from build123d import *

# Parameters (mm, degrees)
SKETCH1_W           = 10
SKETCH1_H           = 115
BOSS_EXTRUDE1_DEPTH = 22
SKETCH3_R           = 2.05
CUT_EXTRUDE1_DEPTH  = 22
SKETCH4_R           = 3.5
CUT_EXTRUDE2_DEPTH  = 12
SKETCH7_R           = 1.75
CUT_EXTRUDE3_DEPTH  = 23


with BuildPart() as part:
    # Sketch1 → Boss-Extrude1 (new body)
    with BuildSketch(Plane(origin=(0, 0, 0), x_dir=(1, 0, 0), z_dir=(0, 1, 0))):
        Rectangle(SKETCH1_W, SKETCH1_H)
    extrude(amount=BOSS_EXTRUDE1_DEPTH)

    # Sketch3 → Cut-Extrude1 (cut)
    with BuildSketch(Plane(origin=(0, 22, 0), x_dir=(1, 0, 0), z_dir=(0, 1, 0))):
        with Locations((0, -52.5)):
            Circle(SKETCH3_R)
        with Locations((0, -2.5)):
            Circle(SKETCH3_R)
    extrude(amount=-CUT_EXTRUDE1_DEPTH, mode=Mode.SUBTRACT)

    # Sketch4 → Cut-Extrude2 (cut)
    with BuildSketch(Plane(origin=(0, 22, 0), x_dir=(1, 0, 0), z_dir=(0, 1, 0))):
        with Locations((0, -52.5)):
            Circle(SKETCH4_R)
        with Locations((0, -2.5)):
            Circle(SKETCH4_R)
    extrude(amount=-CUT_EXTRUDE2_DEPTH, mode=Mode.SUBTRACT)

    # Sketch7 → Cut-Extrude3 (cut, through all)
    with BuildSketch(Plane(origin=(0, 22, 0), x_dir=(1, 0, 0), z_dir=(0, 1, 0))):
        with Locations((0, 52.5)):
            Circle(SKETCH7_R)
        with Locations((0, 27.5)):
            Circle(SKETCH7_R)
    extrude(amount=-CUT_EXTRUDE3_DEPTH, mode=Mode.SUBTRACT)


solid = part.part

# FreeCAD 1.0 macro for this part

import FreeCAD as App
import Part
import Sketcher
from FreeCAD import Vector

doc = App.newDocument("Part")
body = doc.addObject("PartDesign::Body", "Body")

# Sketch on XZ plane
sketch1 = body.newObject("Sketcher::SketchObject", "Sketch")
sketch1.AttachmentSupport = (doc.getObject("XZ_Plane"), [""])
sketch1.MapMode = "FlatFace"
sketch1.addGeometry([
    Part.LineSegment(Vector(-5, -58, 0), Vector(-5, 58, 0)),
    Part.LineSegment(Vector(-5, 58, 0), Vector(5, 58, 0)),
    Part.LineSegment(Vector(5, 58, 0), Vector(5, -58, 0)),
    Part.LineSegment(Vector(5, -58, 0), Vector(-5, -58, 0)),
], False)
sketch1.addConstraint([
    Sketcher.Constraint("Coincident", 0, 2, 1, 1),
    Sketcher.Constraint("Coincident", 1, 2, 2, 1),
    Sketcher.Constraint("Coincident", 2, 2, 3, 1),
    Sketcher.Constraint("Coincident", 3, 2, 0, 1),
    Sketcher.Constraint("Vertical", 0),
    Sketcher.Constraint("Horizontal", 1),
    Sketcher.Constraint("Vertical", 2),
    Sketcher.Constraint("Horizontal", 3),
    Sketcher.Constraint("Symmetric", 0, 2, 2, 2, -1, 1),
    Sketcher.Constraint("DistanceX", 1, 1, 1, 2, 10.0),
    Sketcher.Constraint("DistanceY", 0, 1, 0, 2, 115.0),
])
pad1 = body.newObject("PartDesign::Pad", "Pad")
pad1.Profile = sketch1
pad1.Length = 22
pad1.Reversed = True

# Sketch on XZ plane
sketch2 = body.newObject("Sketcher::SketchObject", "Sketch001")
sketch2.AttachmentSupport = (doc.getObject("XZ_Plane"), [""])
sketch2.MapMode = "FlatFace"
sketch2.AttachmentOffset = App.Placement(Vector(0, 0, -22), App.Rotation())
sketch2.addGeometry([
    Part.Circle(Vector(0, 52.5, 0), Vector(0, 0, 1), 2),
    Part.Circle(Vector(0, 2.5, 0), Vector(0, 0, 1), 2),
], False)
sketch2.addConstraint([
    Sketcher.Constraint("Equal", 0, 1),
    Sketcher.Constraint("PointOnObject", 0, 3, -2),
    Sketcher.Constraint("PointOnObject", 1, 3, -2),
    Sketcher.Constraint("Diameter", 0, 4.1),
    Sketcher.Constraint("DistanceY", 1, 3, 0, 3, 50.0),
    Sketcher.Constraint("DistanceY", -1, 1, 0, 3, 52.5),
])
pocket1 = body.newObject("PartDesign::Pocket", "Pocket")
pocket1.Profile = sketch2
pocket1.Length = 22
pocket1.Reversed = True

# Sketch on XZ plane
sketch3 = body.newObject("Sketcher::SketchObject", "Sketch002")
sketch3.AttachmentSupport = (doc.getObject("XZ_Plane"), [""])
sketch3.MapMode = "FlatFace"
sketch3.AttachmentOffset = App.Placement(Vector(0, 0, -22), App.Rotation())
sketch3.addGeometry([
    Part.Circle(Vector(0, 52.5, 0), Vector(0, 0, 1), 3.5),
    Part.Circle(Vector(0, 2.5, 0), Vector(0, 0, 1), 3.5),
], False)
sketch3.addConstraint([
    Sketcher.Constraint("Equal", 0, 1),
    Sketcher.Constraint("PointOnObject", 0, 3, -2),
    Sketcher.Constraint("PointOnObject", 1, 3, -2),
    Sketcher.Constraint("Diameter", 0, 7.0),
    Sketcher.Constraint("DistanceY", 1, 3, 0, 3, 50.0),
    Sketcher.Constraint("DistanceY", -1, 1, 0, 3, 52.5),
])
pocket2 = body.newObject("PartDesign::Pocket", "Pocket001")
pocket2.Profile = sketch3
pocket2.Length = 12
pocket2.Reversed = True

# Sketch on XZ plane
sketch4 = body.newObject("Sketcher::SketchObject", "Sketch003")
sketch4.AttachmentSupport = (doc.getObject("XZ_Plane"), [""])
sketch4.MapMode = "FlatFace"
sketch4.AttachmentOffset = App.Placement(Vector(0, 0, -22), App.Rotation())
sketch4.addGeometry([
    Part.Circle(Vector(0, -52.5, 0), Vector(0, 0, 1), 1.8),
    Part.Circle(Vector(0, -27.5, 0), Vector(0, 0, 1), 1.8),
], False)
sketch4.addConstraint([
    Sketcher.Constraint("Equal", 0, 1),
    Sketcher.Constraint("PointOnObject", 0, 3, -2),
    Sketcher.Constraint("PointOnObject", 1, 3, -2),
    Sketcher.Constraint("Diameter", 0, 3.5),
    Sketcher.Constraint("DistanceY", 0, 3, 1, 3, 25.0),
    Sketcher.Constraint("DistanceY", 0, 3, -1, 1, 52.5),
])
pocket3 = body.newObject("PartDesign::Pocket", "Pocket002")
pocket3.Profile = sketch4
pocket3.Type = "ThroughAll"
pocket3.Reversed = True

doc.recompute()
